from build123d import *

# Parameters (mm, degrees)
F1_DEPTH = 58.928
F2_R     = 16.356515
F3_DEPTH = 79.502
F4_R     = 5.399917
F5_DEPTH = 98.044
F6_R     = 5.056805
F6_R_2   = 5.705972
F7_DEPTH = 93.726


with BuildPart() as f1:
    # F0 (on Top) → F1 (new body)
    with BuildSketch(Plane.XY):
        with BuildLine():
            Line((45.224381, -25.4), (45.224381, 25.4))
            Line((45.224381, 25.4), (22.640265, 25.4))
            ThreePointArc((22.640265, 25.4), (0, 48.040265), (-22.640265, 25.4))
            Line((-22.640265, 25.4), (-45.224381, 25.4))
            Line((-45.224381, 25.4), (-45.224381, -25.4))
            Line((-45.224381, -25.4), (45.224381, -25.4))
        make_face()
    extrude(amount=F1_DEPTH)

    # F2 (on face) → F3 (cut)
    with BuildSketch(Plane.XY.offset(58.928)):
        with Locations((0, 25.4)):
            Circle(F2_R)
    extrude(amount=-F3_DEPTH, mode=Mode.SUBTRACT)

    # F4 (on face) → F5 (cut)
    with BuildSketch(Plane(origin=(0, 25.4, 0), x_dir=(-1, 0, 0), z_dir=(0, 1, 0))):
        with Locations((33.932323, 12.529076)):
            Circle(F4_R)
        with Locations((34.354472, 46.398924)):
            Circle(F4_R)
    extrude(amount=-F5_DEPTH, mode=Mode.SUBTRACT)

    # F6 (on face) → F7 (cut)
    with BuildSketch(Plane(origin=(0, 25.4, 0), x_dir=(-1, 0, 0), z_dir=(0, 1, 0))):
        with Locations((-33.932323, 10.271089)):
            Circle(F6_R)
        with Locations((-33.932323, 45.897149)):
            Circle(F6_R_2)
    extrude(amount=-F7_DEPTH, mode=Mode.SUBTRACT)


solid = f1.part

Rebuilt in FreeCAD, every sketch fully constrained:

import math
import FreeCAD as App
import Part
import Sketcher
Q = App.Units.Quantity

doc = App.newDocument("Part")
body = doc.addObject("PartDesign::Body", "Body")

sketch1 = doc.addObject("Sketcher::SketchObject", "Sketch")
body.addObject(sketch1)
sketch1.AttachmentSupport = (doc.XY_Plane, [""])
sketch1.MapMode = "FlatFace"
sketch1.addGeometry(Part.LineSegment(App.Vector(45, -25, 0), App.Vector(45, 25, 0)), False)
sketch1.addGeometry(Part.LineSegment(App.Vector(45, 25, 0), App.Vector(23, 25, 0)), False)
sketch1.addGeometry(Part.ArcOfCircle(Part.Circle(App.Vector(0, 25, 0), App.Vector(0, 0, 1), 23), math.radians(0), math.radians(180)), False)
sketch1.addGeometry(Part.LineSegment(App.Vector(-23, 25, 0), App.Vector(-45, 25, 0)), False)
sketch1.addGeometry(Part.LineSegment(App.Vector(-45, 25, 0), App.Vector(-45, -25, 0)), False)
sketch1.addGeometry(Part.LineSegment(App.Vector(-45, -25, 0), App.Vector(45, -25, 0)), False)
sketch1.addConstraint(Sketcher.Constraint("Coincident", 0, 2, 1, 1))
sketch1.addConstraint(Sketcher.Constraint("Coincident", 1, 2, 2, 1))
sketch1.addConstraint(Sketcher.Constraint("Coincident", 2, 2, 3, 1))
sketch1.addConstraint(Sketcher.Constraint("Coincident", 3, 2, 4, 1))
sketch1.addConstraint(Sketcher.Constraint("Coincident", 4, 2, 5, 1))
sketch1.addConstraint(Sketcher.Constraint("Coincident", 5, 2, 0, 1))
sketch1.addConstraint(Sketcher.Constraint("Vertical", 0))
sketch1.addConstraint(Sketcher.Constraint("Horizontal", 1))
sketch1.addConstraint(Sketcher.Constraint("Horizontal", 3))
sketch1.addConstraint(Sketcher.Constraint("Vertical", 4))
sketch1.addConstraint(Sketcher.Constraint("Horizontal", 5))
sketch1.addConstraint(Sketcher.Constraint("Symmetric", 0, 2, 4, 2, -1, 1))
sketch1.addConstraint(Sketcher.Constraint("Symmetric", 1, 2, 2, 2, -2))
sketch1.addConstraint(Sketcher.Constraint("Horizontal", 2, 3, 0, 2))
sketch1.addConstraint(Sketcher.Constraint("DistanceY", 0, 1, 0, 2, Q("2 in")))
sketch1.addConstraint(Sketcher.Constraint("Radius", 2, Q("22.640265 mm")))
sketch1.addConstraint(Sketcher.Constraint("DistanceX", 1, 2, 1, 1, Q("22.584116 mm")))
pad1 = doc.addObject("PartDesign::Pad", "Pad")
body.addObject(pad1)
pad1.Profile = sketch1
pad1.Length = Q("2.32 in")

sketch2 = doc.addObject("Sketcher::SketchObject", "Sketch001")
body.addObject(sketch2)
sketch2.AttachmentSupport = (doc.XY_Plane, [""])
sketch2.MapMode = "FlatFace"
sketch2.AttachmentOffset = App.Placement(App.Vector(0, 0, 2.32 * 25.4), App.Rotation())
sketch2.addGeometry(Part.Circle(App.Vector(0, 25, 0), App.Vector(0, 0, 1), 16), False)
sketch2.addConstraint(Sketcher.Constraint("PointOnObject", 0, 3, -2))
sketch2.addConstraint(Sketcher.Constraint("DistanceY", -1, 1, 0, 3, Q("1 in")))
sketch2.addConstraint(Sketcher.Constraint("Diameter", 0, Q("32.71303 mm")))
pocket1 = doc.addObject("PartDesign::Pocket", "Pocket")
body.addObject(pocket1)
pocket1.Profile = sketch2
pocket1.Length = Q("3.13 in")

sketch3 = doc.addObject("Sketcher::SketchObject", "Sketch002")
body.addObject(sketch3)
sketch3.AttachmentSupport = (doc.XZ_Plane, [""])
sketch3.MapMode = "FlatFace"
sketch3.AttachmentOffset = App.Placement(App.Vector(0, 0, -1 * 25.4), App.Rotation())
sketch3.addGeometry(Part.Circle(App.Vector(-34, 13, 0), App.Vector(0, 0, 1), 5), False)
sketch3.addGeometry(Part.Circle(App.Vector(-34, 46, 0), App.Vector(0, 0, 1), 5), False)
sketch3.addConstraint(Sketcher.Constraint("Equal", 0, 1))
sketch3.addConstraint(Sketcher.Constraint("Diameter", 0, Q("10.799834 mm")))
sketch3.addConstraint(Sketcher.Constraint("DistanceX", 1, 3, 0, 3, Q("0.422149 mm")))
sketch3.addConstraint(Sketcher.Constraint("DistanceY", 0, 3, 1, 3, Q("33.869848 mm")))
sketch3.addConstraint(Sketcher.Constraint("DistanceX", 0, 3, -1, 1, Q("33.932323 mm")))
sketch3.addConstraint(Sketcher.Constraint("DistanceY", -1, 1, 0, 3, Q("12.529076 mm")))
pocket2 = doc.addObject("PartDesign::Pocket", "Pocket001")
body.addObject(pocket2)
pocket2.Profile = sketch3
pocket2.Length = Q("3.86 in")
pocket2.Reversed = True

sketch4 = doc.addObject("Sketcher::SketchObject", "Sketch003")
body.addObject(sketch4)
sketch4.AttachmentSupport = (doc.XZ_Plane, [""])
sketch4.MapMode = "FlatFace"
sketch4.AttachmentOffset = App.Placement(App.Vector(0, 0, -1 * 25.4), App.Rotation())
sketch4.addGeometry(Part.Circle(App.Vector(34, 10, 0), App.Vector(0, 0, 1), 5), False)
sketch4.addGeometry(Part.Circle(App.Vector(34, 46, 0), App.Vector(0, 0, 1), 6), False)
sketch4.addConstraint(Sketcher.Constraint("Vertical", 0, 3, 1, 3))
sketch4.addConstraint(Sketcher.Constraint("Diameter", 0, Q("10.11361 mm")))
sketch4.addConstraint(Sketcher.Constraint("Diameter", 1, Q("11.411944 mm")))
sketch4.addConstraint(Sketcher.Constraint("DistanceY", -1, 1, 0, 3, Q("10.271089 mm")))
sketch4.addConstraint(Sketcher.Constraint("DistanceY", -1, 1, 1, 3, Q("45.897149 mm")))
sketch4.addConstraint(Sketcher.Constraint("DistanceX", -1, 1, 0, 3, Q("33.932323 mm")))
pocket3 = doc.addObject("PartDesign::Pocket", "Pocket002")
body.addObject(pocket3)
pocket3.Profile = sketch4
pocket3.Length = Q("3.69 in")
pocket3.Reversed = True

doc.recompute()
